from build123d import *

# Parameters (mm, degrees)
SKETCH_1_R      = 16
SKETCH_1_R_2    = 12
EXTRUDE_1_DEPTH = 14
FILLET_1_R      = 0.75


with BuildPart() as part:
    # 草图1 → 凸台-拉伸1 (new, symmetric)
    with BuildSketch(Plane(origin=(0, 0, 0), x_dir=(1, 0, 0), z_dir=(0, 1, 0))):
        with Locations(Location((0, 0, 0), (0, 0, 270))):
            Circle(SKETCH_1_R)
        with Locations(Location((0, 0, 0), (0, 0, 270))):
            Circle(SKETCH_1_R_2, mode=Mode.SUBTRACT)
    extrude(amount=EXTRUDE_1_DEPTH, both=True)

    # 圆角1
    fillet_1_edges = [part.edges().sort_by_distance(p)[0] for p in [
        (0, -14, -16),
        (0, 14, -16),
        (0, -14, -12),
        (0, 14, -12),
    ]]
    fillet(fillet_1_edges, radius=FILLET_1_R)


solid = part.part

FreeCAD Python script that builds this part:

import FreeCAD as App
import Part
import Sketcher
from FreeCAD import Vector
Q = App.Units.Quantity


def edges_at(feature, points):
    """Names of the edges that pass closest to the given points."""
    edges = feature.Shape.Edges
    near = lambda p: min(range(len(edges)), key=lambda i: edges[i].distToShape(Part.Vertex(*p))[0])
    return sorted({f"Edge{near(p) + 1}" for p in points})

doc = App.newDocument("Part")
params = doc.addObject("Spreadsheet::Sheet", "Params")
for row, (alias, value) in enumerate([
    ("sketch1_diameter", "32 mm"),
    ("sketch1_diameter2", "24 mm"),
    ("pad1_length", "28 mm"),
    ("fillet_radius", "0.75 mm"),
], start=1):
    params.set(f"A{row}", alias)
    params.set(f"B{row}", "=" + value)
    params.setAlias(f"B{row}", alias)

body = doc.addObject("PartDesign::Body", "Body")

# Sketch on XZ plane
sketch1 = body.newObject("Sketcher::SketchObject", "Sketch")
sketch1.AttachmentSupport = (doc.getObject("XZ_Plane"), [""])
sketch1.MapMode = "FlatFace"
sketch1.addGeometry([
    Part.Circle(Vector(0, 0, 0), Vector(0, 0, 1), 16),
    Part.Circle(Vector(0, 0, 0), Vector(0, 0, 1), 12),
], False)
sketch1.addConstraint([
    Sketcher.Constraint("Coincident", 0, 3, -1, 1),
    Sketcher.Constraint("Coincident", 1, 3, -1, 1),
    Sketcher.Constraint("Diameter", 0, Q("32 mm")),
    Sketcher.Constraint("Diameter", 1, Q("24 mm")),
])
sketch1.setExpression("Constraints[2]", "Params.sketch1_diameter")
sketch1.setExpression("Constraints[3]", "Params.sketch1_diameter2")
pad1 = body.newObject("PartDesign::Pad", "Pad")
pad1.Profile = sketch1
pad1.setExpression("Length", "Params.pad1_length")
pad1.Midplane = True
doc.recompute()

fillet = body.newObject("PartDesign::Fillet", "Fillet")
fillet.Base = (pad1, edges_at(pad1, [
    (0, -14, -16),
    (0, 14, -16),
    (0, -14, -12),
    (0, 14, -12),
]))
fillet.setExpression("Radius", "Params.fillet_radius")

doc.recompute()
